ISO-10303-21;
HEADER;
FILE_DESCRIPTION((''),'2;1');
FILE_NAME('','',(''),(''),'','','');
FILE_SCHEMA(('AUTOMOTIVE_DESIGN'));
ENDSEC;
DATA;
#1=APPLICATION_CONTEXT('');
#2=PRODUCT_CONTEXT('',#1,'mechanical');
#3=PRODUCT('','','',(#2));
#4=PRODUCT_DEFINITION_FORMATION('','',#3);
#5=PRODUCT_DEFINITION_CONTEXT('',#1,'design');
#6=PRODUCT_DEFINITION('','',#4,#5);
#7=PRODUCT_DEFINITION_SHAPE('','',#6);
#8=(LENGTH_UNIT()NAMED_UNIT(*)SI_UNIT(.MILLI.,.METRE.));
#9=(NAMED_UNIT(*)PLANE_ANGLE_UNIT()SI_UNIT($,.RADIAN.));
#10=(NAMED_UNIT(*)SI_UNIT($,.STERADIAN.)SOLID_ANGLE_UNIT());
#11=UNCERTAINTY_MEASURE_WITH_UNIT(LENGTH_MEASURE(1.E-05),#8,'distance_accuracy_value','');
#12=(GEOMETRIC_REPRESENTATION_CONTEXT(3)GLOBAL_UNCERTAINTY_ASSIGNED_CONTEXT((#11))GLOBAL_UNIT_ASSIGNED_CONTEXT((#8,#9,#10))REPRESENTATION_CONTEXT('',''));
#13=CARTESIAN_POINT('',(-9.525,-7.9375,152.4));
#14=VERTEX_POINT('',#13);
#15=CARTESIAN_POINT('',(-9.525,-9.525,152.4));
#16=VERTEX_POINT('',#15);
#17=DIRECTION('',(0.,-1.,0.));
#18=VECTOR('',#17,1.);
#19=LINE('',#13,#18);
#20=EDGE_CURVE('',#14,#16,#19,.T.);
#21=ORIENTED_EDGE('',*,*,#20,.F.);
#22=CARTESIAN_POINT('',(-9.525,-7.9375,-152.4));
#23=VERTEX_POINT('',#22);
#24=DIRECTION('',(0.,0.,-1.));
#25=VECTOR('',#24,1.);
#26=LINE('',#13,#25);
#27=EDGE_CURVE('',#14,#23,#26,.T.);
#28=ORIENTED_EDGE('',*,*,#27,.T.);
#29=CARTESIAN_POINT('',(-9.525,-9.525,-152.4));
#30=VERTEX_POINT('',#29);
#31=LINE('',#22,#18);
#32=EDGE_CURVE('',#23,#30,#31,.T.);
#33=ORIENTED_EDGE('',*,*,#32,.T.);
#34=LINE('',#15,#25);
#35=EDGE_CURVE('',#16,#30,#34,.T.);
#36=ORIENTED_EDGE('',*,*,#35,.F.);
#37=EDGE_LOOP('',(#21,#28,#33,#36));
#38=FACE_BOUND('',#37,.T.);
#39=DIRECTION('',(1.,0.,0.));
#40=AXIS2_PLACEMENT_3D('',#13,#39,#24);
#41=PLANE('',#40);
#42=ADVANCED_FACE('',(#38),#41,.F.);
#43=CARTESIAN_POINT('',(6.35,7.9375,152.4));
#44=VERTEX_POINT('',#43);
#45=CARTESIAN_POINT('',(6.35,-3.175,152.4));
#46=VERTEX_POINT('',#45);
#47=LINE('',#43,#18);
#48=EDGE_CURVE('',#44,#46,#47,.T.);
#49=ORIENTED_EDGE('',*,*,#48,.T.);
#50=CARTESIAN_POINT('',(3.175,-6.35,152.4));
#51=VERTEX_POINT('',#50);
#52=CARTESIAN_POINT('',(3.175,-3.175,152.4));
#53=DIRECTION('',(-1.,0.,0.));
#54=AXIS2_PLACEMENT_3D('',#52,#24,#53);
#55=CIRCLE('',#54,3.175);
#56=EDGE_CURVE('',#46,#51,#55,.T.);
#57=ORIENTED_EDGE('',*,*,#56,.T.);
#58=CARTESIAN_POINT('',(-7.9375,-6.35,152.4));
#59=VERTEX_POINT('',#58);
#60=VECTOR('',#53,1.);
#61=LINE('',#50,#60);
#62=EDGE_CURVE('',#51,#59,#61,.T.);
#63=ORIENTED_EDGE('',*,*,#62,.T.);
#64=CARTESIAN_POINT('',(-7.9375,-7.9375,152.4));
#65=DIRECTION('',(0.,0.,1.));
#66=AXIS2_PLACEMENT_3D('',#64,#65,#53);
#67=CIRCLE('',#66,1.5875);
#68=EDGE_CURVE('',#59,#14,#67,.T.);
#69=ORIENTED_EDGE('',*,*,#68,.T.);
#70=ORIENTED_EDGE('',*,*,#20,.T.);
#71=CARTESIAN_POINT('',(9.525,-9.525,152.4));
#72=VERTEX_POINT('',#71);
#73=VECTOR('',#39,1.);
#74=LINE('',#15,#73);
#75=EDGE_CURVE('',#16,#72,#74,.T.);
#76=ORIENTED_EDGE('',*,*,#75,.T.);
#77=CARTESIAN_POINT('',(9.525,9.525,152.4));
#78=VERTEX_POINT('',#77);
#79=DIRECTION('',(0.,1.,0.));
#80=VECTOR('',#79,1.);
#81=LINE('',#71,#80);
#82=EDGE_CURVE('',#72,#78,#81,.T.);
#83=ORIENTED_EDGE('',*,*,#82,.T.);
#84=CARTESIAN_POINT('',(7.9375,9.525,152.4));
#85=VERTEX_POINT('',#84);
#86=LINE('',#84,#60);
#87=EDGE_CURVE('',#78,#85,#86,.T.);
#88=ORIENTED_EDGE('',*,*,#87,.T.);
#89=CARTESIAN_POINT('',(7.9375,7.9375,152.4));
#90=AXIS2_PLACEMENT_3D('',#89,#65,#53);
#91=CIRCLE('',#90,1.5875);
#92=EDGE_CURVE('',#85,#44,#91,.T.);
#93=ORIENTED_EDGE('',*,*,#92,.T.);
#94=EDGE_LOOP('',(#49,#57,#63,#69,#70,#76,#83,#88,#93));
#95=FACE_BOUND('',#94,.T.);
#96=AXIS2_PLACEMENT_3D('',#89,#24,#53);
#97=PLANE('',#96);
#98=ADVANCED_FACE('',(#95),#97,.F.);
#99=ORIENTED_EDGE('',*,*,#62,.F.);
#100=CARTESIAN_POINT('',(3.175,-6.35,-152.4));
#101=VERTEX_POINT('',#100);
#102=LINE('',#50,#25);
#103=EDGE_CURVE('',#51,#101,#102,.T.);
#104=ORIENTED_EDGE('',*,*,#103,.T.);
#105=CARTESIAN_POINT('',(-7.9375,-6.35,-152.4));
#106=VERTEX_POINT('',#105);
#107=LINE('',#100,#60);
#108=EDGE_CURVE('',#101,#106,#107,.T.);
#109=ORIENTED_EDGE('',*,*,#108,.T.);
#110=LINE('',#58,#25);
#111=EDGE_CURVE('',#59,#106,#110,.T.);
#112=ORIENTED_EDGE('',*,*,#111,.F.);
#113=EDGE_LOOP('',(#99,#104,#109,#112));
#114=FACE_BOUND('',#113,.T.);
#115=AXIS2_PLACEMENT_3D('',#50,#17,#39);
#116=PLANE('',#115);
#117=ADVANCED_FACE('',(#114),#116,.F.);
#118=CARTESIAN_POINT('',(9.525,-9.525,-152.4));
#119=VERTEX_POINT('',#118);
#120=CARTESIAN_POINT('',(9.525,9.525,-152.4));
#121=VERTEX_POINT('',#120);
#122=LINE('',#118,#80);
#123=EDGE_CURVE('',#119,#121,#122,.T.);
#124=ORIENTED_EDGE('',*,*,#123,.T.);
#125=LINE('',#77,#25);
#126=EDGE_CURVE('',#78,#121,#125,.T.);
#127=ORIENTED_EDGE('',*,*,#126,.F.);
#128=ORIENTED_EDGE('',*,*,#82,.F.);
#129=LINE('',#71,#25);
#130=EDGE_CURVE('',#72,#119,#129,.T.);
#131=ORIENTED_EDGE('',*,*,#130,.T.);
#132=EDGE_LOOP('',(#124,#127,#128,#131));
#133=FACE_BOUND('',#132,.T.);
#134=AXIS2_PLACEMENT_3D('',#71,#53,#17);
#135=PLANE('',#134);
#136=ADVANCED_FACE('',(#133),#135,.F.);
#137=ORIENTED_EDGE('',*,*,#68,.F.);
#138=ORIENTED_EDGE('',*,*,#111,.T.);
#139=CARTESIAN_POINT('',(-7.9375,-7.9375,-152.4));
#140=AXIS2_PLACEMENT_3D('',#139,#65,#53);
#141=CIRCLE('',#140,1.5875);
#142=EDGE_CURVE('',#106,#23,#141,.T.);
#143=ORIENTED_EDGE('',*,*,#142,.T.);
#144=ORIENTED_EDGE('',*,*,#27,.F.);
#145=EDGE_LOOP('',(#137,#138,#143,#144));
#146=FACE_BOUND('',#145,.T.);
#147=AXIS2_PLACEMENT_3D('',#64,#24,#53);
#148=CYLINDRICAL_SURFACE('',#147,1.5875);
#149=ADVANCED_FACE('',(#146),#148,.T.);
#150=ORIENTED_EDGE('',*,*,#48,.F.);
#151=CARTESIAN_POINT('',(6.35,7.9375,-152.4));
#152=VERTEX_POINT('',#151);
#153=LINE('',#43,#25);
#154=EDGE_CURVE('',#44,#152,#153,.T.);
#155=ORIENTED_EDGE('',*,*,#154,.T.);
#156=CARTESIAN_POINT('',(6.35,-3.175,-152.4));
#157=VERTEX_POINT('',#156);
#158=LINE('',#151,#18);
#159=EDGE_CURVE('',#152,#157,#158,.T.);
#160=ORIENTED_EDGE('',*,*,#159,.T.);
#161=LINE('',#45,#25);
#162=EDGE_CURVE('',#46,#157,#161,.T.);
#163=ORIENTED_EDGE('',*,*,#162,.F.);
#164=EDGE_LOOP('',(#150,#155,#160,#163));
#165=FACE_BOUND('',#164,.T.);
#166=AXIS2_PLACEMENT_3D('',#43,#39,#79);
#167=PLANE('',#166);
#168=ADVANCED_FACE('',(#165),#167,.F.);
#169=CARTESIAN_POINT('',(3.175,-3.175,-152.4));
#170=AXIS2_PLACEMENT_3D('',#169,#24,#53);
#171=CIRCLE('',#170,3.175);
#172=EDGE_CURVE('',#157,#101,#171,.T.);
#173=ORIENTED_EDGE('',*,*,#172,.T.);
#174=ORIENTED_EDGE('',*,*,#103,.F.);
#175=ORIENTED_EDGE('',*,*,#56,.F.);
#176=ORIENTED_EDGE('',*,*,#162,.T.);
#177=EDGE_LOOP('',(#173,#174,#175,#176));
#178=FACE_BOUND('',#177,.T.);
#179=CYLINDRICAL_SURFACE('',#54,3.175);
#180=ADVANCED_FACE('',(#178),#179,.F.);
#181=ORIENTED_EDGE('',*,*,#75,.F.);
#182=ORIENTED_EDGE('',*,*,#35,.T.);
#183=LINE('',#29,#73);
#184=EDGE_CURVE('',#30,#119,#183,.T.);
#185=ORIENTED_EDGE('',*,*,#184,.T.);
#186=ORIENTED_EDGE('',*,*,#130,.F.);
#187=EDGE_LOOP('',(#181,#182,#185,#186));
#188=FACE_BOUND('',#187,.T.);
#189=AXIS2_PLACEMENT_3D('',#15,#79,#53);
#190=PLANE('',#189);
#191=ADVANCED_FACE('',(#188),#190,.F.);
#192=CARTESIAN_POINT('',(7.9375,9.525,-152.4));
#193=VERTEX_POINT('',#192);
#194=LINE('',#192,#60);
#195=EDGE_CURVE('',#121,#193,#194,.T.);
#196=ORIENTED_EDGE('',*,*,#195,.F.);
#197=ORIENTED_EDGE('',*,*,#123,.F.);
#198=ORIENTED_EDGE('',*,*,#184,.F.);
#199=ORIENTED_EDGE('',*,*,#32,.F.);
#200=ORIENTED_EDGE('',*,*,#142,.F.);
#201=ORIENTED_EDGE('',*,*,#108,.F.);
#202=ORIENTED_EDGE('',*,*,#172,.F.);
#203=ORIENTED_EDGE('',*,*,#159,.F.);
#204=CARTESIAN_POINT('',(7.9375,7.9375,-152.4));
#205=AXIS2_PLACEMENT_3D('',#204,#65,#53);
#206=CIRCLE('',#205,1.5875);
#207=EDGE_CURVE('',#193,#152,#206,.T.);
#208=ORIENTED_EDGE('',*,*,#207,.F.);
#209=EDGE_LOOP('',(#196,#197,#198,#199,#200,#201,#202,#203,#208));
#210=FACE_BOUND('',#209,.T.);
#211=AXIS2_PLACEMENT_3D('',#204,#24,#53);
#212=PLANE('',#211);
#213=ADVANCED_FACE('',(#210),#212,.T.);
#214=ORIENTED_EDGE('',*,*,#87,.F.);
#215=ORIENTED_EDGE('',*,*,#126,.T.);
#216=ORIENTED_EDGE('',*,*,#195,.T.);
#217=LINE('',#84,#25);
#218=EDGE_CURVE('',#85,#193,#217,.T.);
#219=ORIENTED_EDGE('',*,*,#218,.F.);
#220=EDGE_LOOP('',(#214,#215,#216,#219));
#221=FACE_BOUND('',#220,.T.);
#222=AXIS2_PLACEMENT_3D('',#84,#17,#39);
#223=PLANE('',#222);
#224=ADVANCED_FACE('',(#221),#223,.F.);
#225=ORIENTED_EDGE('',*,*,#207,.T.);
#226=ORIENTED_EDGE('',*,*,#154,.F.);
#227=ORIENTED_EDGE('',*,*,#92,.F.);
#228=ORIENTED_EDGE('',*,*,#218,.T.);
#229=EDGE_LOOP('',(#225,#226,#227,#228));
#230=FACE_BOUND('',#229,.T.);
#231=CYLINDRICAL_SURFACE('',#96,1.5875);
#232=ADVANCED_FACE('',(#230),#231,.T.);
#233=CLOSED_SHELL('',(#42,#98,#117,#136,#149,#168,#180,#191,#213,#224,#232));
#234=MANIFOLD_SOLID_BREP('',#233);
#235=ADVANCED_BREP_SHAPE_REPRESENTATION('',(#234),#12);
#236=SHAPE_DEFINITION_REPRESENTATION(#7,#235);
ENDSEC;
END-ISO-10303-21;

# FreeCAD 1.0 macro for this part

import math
import FreeCAD as App
import Part
import Sketcher
from FreeCAD import Vector
Q = App.Units.Quantity

doc = App.newDocument("Part")
body = doc.addObject("PartDesign::Body", "Body")

sketch1 = body.newObject("Sketcher::SketchObject", "Sketch")
sketch1.AttachmentSupport = (doc.getObject("XY_Plane"), [""])
sketch1.MapMode = "FlatFace"
sketch1.addGeometry(Part.LineSegment(Vector(-9.5, -9.5, 0), Vector(9.5, -9.5, 0)), False)
sketch1.addGeometry(Part.LineSegment(Vector(9.5, -9.5, 0), Vector(9.5, 9.5, 0)), False)
sketch1.addGeometry(Part.LineSegment(Vector(9.5, 9.5, 0), Vector(7.9, 9.5, 0)), False)
sketch1.addGeometry(Part.ArcOfCircle(Part.Circle(Vector(7.9, 7.9, 0), Vector(0, 0, 1), 1.6), math.radians(90), math.radians(180)), False)
sketch1.addGeometry(Part.LineSegment(Vector(6.3, 7.9, 0), Vector(6.3, -3.2, 0)), False)
sketch1.addGeometry(Part.ArcOfCircle(Part.Circle(Vector(3.2, -3.2, 0), Vector(0, 0, 1), 3.2), math.radians(-90), math.radians(0)), False)
sketch1.addGeometry(Part.LineSegment(Vector(3.2, -6.3, 0), Vector(-7.9, -6.3, 0)), False)
sketch1.addGeometry(Part.ArcOfCircle(Part.Circle(Vector(-7.9, -7.9, 0), Vector(0, 0, 1), 1.6), math.radians(90), math.radians(180)), False)
sketch1.addGeometry(Part.LineSegment(Vector(-9.5, -7.9, 0), Vector(-9.5, -9.5, 0)), False)
sketch1.addConstraint(Sketcher.Constraint("Coincident", 0, 2, 1, 1))
sketch1.addConstraint(Sketcher.Constraint("Coincident", 1, 2, 2, 1))
sketch1.addConstraint(Sketcher.Constraint("Tangent", 2, 2, 3, 1))
sketch1.addConstraint(Sketcher.Constraint("Tangent", 3, 2, 4, 1))
sketch1.addConstraint(Sketcher.Constraint("Tangent", 4, 2, 5, 2))
sketch1.addConstraint(Sketcher.Constraint("Tangent", 5, 1, 6, 1))
sketch1.addConstraint(Sketcher.Constraint("Tangent", 6, 2, 7, 1))
sketch1.addConstraint(Sketcher.Constraint("Tangent", 7, 2, 8, 1))
sketch1.addConstraint(Sketcher.Constraint("Coincident", 8, 2, 0, 1))
sketch1.addConstraint(Sketcher.Constraint("Horizontal", 0))
sketch1.addConstraint(Sketcher.Constraint("Vertical", 1))
sketch1.addConstraint(Sketcher.Constraint("Horizontal", 2))
sketch1.addConstraint(Sketcher.Constraint("Vertical", 4))
sketch1.addConstraint(Sketcher.Constraint("Horizontal", 6))
sketch1.addConstraint(Sketcher.Constraint("Vertical", 8))
sketch1.addConstraint(Sketcher.Constraint("Equal", 3, 7))
sketch1.addConstraint(Sketcher.Constraint("Symmetric", 3, 3, 7, 3, -1, 1))
sketch1.addConstraint(Sketcher.Constraint("Symmetric", 1, 2, 8, 2, -1, 1))
sketch1.addConstraint(Sketcher.Constraint("Equal", 0, 1))
sketch1.addConstraint(Sketcher.Constraint("Radius", 3, Q("0.0625 in")))
sketch1.addConstraint(Sketcher.Constraint("Radius", 5, Q("0.125 in")))
sketch1.addConstraint(Sketcher.Constraint("DistanceX", 0, 1, 0, 2, Q("0.75 in")))
pad1 = body.newObject("PartDesign::Pad", "Pad")
pad1.Profile = sketch1
pad1.Length = Q("12 in")
pad1.Midplane = True

doc.recompute()
